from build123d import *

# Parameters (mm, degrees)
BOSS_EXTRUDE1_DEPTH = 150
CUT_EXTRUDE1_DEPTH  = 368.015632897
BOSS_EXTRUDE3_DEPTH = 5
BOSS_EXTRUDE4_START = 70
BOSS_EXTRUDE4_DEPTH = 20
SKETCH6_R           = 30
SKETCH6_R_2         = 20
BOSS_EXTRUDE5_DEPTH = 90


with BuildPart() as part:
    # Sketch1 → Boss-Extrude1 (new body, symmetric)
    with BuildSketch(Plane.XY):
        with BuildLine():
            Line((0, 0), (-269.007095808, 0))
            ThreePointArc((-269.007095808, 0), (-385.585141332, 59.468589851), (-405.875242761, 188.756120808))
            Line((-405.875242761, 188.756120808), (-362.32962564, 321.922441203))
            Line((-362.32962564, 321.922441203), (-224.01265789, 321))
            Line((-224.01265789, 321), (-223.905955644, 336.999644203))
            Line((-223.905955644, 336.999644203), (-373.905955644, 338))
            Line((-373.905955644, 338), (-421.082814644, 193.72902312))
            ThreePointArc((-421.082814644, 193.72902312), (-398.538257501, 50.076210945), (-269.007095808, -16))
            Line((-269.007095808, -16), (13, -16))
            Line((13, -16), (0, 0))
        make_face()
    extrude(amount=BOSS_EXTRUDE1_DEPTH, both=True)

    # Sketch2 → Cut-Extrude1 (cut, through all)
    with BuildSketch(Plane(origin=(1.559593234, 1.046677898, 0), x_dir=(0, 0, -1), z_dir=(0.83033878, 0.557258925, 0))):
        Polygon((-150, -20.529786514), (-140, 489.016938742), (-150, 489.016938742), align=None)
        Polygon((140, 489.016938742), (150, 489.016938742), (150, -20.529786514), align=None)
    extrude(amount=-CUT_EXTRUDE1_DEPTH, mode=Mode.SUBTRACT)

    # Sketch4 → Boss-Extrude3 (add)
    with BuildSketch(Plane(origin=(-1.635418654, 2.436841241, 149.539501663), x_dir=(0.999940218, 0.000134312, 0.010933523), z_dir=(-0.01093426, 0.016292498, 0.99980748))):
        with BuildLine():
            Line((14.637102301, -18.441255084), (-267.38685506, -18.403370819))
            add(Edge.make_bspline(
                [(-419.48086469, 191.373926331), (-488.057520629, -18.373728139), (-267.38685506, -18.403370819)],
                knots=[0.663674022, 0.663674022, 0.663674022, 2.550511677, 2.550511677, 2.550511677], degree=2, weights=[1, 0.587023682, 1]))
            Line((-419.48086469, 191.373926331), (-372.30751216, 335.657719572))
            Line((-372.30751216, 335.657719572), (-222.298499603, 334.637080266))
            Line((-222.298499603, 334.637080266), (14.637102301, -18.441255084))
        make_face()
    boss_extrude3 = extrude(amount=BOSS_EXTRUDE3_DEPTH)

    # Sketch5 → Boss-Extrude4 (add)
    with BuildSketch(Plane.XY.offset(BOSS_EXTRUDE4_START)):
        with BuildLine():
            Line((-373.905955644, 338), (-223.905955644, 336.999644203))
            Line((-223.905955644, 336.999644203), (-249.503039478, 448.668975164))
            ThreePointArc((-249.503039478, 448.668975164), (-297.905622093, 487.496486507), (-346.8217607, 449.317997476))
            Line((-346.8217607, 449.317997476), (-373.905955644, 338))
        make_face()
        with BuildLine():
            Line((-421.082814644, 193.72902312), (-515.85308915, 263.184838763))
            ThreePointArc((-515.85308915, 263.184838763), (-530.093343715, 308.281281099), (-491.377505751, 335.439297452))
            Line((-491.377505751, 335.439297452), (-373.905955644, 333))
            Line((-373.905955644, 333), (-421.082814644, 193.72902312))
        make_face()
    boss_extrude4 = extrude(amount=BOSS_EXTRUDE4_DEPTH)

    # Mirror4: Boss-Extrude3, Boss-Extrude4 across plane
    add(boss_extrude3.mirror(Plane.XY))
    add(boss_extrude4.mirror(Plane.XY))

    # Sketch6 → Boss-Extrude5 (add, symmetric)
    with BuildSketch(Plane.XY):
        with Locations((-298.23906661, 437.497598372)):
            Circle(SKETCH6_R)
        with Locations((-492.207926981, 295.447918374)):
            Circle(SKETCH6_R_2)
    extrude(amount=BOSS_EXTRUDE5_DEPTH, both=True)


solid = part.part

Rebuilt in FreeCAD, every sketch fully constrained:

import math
import FreeCAD as App
import Part
import Sketcher

V = App.Vector


def add_polygon(sketch, points):
    """Adds a closed chain of lines whose ends are joined by coincident constraints."""
    first, n = sketch.GeometryCount, len(points)
    for a, b in zip(points, points[1:] + points[:1]):
        sketch.addGeometry(Part.LineSegment(App.Vector(*a, 0), App.Vector(*b, 0)), False)
    for i in range(n):
        sketch.addConstraint(Sketcher.Constraint("Coincident", first + i, 2, first + (i + 1) % n, 1))

doc = App.newDocument("Part")
body = doc.addObject("PartDesign::Body", "Body")

# Sketch on XY plane
sketch1 = body.newObject("Sketcher::SketchObject", "Sketch")
sketch1.AttachmentSupport = (doc.getObject("XY_Plane"), [""])
sketch1.MapMode = "FlatFace"
sketch1.addGeometry(Part.LineSegment(V(0, 0, 0), V(-269.007096, 0, 0)), False)
sketch1.addGeometry(Part.ArcOfCircle(Part.Circle(V(-269.007096, 144, 0), V(0, 0, 1), 144), math.radians(161.892166), math.radians(270)), False)
sketch1.addGeometry(Part.LineSegment(V(-405.875243, 188.756121, 0), V(-362.329626, 321.922441, 0)), False)
sketch1.addGeometry(Part.LineSegment(V(-362.329626, 321.922441, 0), V(-224.012658, 321, 0)), False)
sketch1.addGeometry(Part.LineSegment(V(-224.012658, 321, 0), V(-223.905956, 336.999644, 0)), False)
sketch1.addGeometry(Part.LineSegment(V(-223.905956, 336.999644, 0), V(-373.905956, 338, 0)), False)
sketch1.addGeometry(Part.LineSegment(V(-373.905956, 338, 0), V(-421.082815, 193.729023, 0)), False)
sketch1.addGeometry(Part.ArcOfCircle(Part.Circle(V(-269.007096, 144, 0), V(0, 0, 1), 160), math.radians(161.892166), math.radians(270)), False)
sketch1.addGeometry(Part.LineSegment(V(-269.007096, -16, 0), V(13, -16, 0)), False)
sketch1.addGeometry(Part.LineSegment(V(13, -16, 0), V(0, 0, 0)), False)
sketch1.addConstraint(Sketcher.Constraint("Tangent", 0, 2, 1, 2))
sketch1.addConstraint(Sketcher.Constraint("Tangent", 1, 1, 2, 1))
sketch1.addConstraint(Sketcher.Constraint("Coincident", 2, 2, 3, 1))
sketch1.addConstraint(Sketcher.Constraint("Coincident", 3, 2, 4, 1))
sketch1.addConstraint(Sketcher.Constraint("Coincident", 4, 2, 5, 1))
sketch1.addConstraint(Sketcher.Constraint("Coincident", 5, 2, 6, 1))
sketch1.addConstraint(Sketcher.Constraint("Tangent", 6, 2, 7, 1))
sketch1.addConstraint(Sketcher.Constraint("Tangent", 7, 2, 8, 1))
sketch1.addConstraint(Sketcher.Constraint("Coincident", 8, 2, 9, 1))
sketch1.addConstraint(Sketcher.Constraint("Coincident", 9, 2, 0, 1))
sketch1.addConstraint(Sketcher.Constraint("Horizontal", 0))
sketch1.addConstraint(Sketcher.Constraint("Horizontal", 8))
sketch1.addConstraint(Sketcher.Constraint("Coincident", 9, 2, -1, 1))
sketch1.addConstraint(Sketcher.Constraint("Coincident", 7, 3, 1, 3))
sketch1.addConstraint(Sketcher.Constraint("Perpendicular", 3, 4))
sketch1.addConstraint(Sketcher.Constraint("Perpendicular", 4, 5))
sketch1.addConstraint(Sketcher.Constraint("Parallel", 2, 6))
sketch1.addConstraint(Sketcher.Constraint("Radius", 1, 144.0))
sketch1.addConstraint(Sketcher.Constraint("Radius", 7, 160.0))
sketch1.addConstraint(Sketcher.Constraint("Distance", 4, 16.0))
sketch1.addConstraint(Sketcher.Constraint("DistanceY", -1, 1, 3, 2, 321.0))
sketch1.addConstraint(Sketcher.Constraint("DistanceY", -1, 1, 5, 2, 338.0))
sketch1.addConstraint(Sketcher.Constraint("DistanceX", -1, 1, 8, 2, 13.0))
sketch1.addConstraint(Sketcher.Constraint("DistanceX", 5, 2, 4, 2, 150.0))
sketch1.addConstraint(Sketcher.Constraint("Distance", 2, 140.105281))
sketch1.addConstraint(Sketcher.Constraint("DistanceX", 0, 2, 0, 1, 269.007096))
pad1 = body.newObject("PartDesign::Pad", "Pad")
pad1.Profile = sketch1
pad1.Length = 300
pad1.Midplane = True

# Sketch on an angled plane
sketch2 = body.newObject("Sketcher::SketchObject", "Sketch001")
sketch2.Placement = App.Placement(V(1.559593, 1.046678, 0), App.Rotation(V(0, 0, -1), V(-0.557258925, 0.83033878, 0), V(0.83033878, 0.557258925, 0), "ZXY"))
add_polygon(sketch2, [(-150, -20.529786), (-140, 489.016938), (-150, 489.016938)])  # lines 0-2
add_polygon(sketch2, [(150, 489.016938), (140, 489.016938), (150, -20.529786)])  # lines 3-5
sketch2.addConstraint(Sketcher.Constraint("Horizontal", 1))
sketch2.addConstraint(Sketcher.Constraint("Vertical", 2))
sketch2.addConstraint(Sketcher.Constraint("Horizontal", 3))
sketch2.addConstraint(Sketcher.Constraint("Vertical", 5))
sketch2.addConstraint(Sketcher.Constraint("Symmetric", 0, 2, 3, 2, -2))
sketch2.addConstraint(Sketcher.Constraint("Symmetric", 2, 2, 4, 2, -2))
sketch2.addConstraint(Sketcher.Constraint("DistanceX", 1, 2, 1, 1, 10.0))
sketch2.addConstraint(Sketcher.Constraint("DistanceX", 0, 2, -1, 1, 140.0))
sketch2.addConstraint(Sketcher.Constraint("Distance", 0, 509.644842))
sketch2.addConstraint(Sketcher.Constraint("DistanceY", -1, 1, 0, 2, 489.016938))
pocket1 = body.newObject("PartDesign::Pocket", "Pocket")
pocket1.Profile = sketch2
pocket1.Type = "ThroughAll"

# Sketch on an angled plane
sketch3 = body.newObject("Sketcher::SketchObject", "Sketch002")
sketch3.Placement = App.Placement(V(-1.635419, 2.436841, 149.539502), App.Rotation(V(0.999940218, 0.000134312, 0.010933523), V(0.000043848, 0.999867259, -0.016292993), V(-0.01093426, 0.016292498, 0.99980748), "ZXY"))
sketch3.addGeometry(Part.LineSegment(V(-267.386855, -18.403371, 0), V(14.637102, -18.441255, 0)), False)
sketch3.addGeometry(Part.LineSegment(V(14.637102, -18.441255, 0), V(-222.298499, 334.63708, 0)), False)
sketch3.addGeometry(Part.LineSegment(V(-222.298499, 334.63708, 0), V(-372.307512, 335.65772, 0)), False)
sketch3.addGeometry(Part.LineSegment(V(-372.307512, 335.65772, 0), V(-419.480864, 191.373926, 0)), False)
sketch3.addGeometry(Part.BSplineCurve([V(-419.480864, 191.373926, 0), V(-488.05752, -18.373728, 0), V(-267.386855, -18.403371, 0)], [3, 3], [0.663674022, 2.550511677], False, 2, [1, 0.587023682, 1], False), False)
sketch3.addConstraint(Sketcher.Constraint("Block", 4))
sketch3.addConstraint(Sketcher.Constraint("Coincident", 0, 2, 1, 1))
sketch3.addConstraint(Sketcher.Constraint("Coincident", 1, 2, 2, 1))
sketch3.addConstraint(Sketcher.Constraint("Coincident", 2, 2, 3, 1))
sketch3.addConstraint(Sketcher.Constraint("Coincident", 3, 2, 4, 1))
sketch3.addConstraint(Sketcher.Constraint("Coincident", 4, 2, 0, 1))
sketch3.addConstraint(Sketcher.Constraint("DistanceX", 1, 2, -1, 1, 222.298499))
sketch3.addConstraint(Sketcher.Constraint("DistanceX", 1, 2, 0, 2, 236.935602))
sketch3.addConstraint(Sketcher.Constraint("DistanceY", -1, 1, 1, 2, 334.63708))
sketch3.addConstraint(Sketcher.Constraint("DistanceX", 2, 2, -1, 1, 372.307512))
sketch3.addConstraint(Sketcher.Constraint("DistanceY", -1, 1, 2, 2, 335.65772))
sketch3.addConstraint(Sketcher.Constraint("DistanceY", 0, 2, 3, 2, 209.815181))
pad2 = body.newObject("PartDesign::Pad", "Pad001")
pad2.Profile = sketch3
pad2.Length = 5

# Sketch on XY plane
sketch4 = body.newObject("Sketcher::SketchObject", "Sketch003")
sketch4.AttachmentSupport = (doc.getObject("XY_Plane"), [""])
sketch4.MapMode = "FlatFace"
sketch4.AttachmentOffset = App.Placement(V(0, 0, 70), App.Rotation())
sketch4.addGeometry(Part.LineSegment(V(-373.905956, 338, 0), V(-223.905956, 336.999644, 0)), False)
sketch4.addGeometry(Part.LineSegment(V(-223.905956, 336.999644, 0), V(-249.503039, 448.668975, 0)), False)
sketch4.addGeometry(Part.ArcOfCircle(Part.Circle(V(-298.239067, 437.497598, 0), V(0, 0, 1), 50), math.radians(12.910429), math.radians(166.325367)), False)
sketch4.addGeometry(Part.LineSegment(V(-346.821761, 449.317997, 0), V(-373.905956, 338, 0)), False)
sketch4.addGeometry(Part.LineSegment(V(-515.853089, 263.184839, 0), V(-421.082815, 193.729023, 0)), False)
sketch4.addGeometry(Part.LineSegment(V(-421.082815, 193.729023, 0), V(-373.905956, 333, 0)), False)
sketch4.addGeometry(Part.LineSegment(V(-373.905956, 333, 0), V(-491.377506, 335.439297, 0)), False)
sketch4.addGeometry(Part.ArcOfCircle(Part.Circle(V(-492.207927, 295.447918, 0), V(0, 0, 1), 40), math.radians(88.810424), math.radians(233.76283)), False)
sketch4.addConstraint(Sketcher.Constraint("Coincident", 0, 2, 1, 1))
sketch4.addConstraint(Sketcher.Constraint("Tangent", 1, 2, 2, 1))
sketch4.addConstraint(Sketcher.Constraint("Tangent", 2, 2, 3, 1))
sketch4.addConstraint(Sketcher.Constraint("Coincident", 3, 2, 0, 1))
sketch4.addConstraint(Sketcher.Constraint("Coincident", 4, 2, 5, 1))
sketch4.addConstraint(Sketcher.Constraint("Coincident", 5, 2, 6, 1))
sketch4.addConstraint(Sketcher.Constraint("Tangent", 6, 2, 7, 1))
sketch4.addConstraint(Sketcher.Constraint("Tangent", 7, 2, 4, 1))
sketch4.addConstraint(Sketcher.Constraint("Vertical", 3, 2, 5, 2))
sketch4.addConstraint(Sketcher.Constraint("Equal", 1, 3))
sketch4.addConstraint(Sketcher.Constraint("Equal", 4, 6))
sketch4.addConstraint(Sketcher.Constraint("Radius", 2, 50.0))
sketch4.addConstraint(Sketcher.Constraint("Radius", 7, 40.0))
sketch4.addConstraint(Sketcher.Constraint("DistanceY", -1, 1, 3, 2, 338.0))
sketch4.addConstraint(Sketcher.Constraint("DistanceY", -1, 1, 5, 2, 333.0))
sketch4.addConstraint(Sketcher.Constraint("DistanceX", 3, 2, 0, 2, 150.0))
sketch4.addConstraint(Sketcher.Constraint("DistanceY", -1, 1, 2, 3, 437.497598))
sketch4.addConstraint(Sketcher.Constraint("DistanceY", 2, 3, 2, 2, 11.820399))
sketch4.addConstraint(Sketcher.Constraint("DistanceY", 6, 2, 2, 2, 113.8787))
sketch4.addConstraint(Sketcher.Constraint("Distance", 5, 147.044419))
sketch4.addConstraint(Sketcher.Constraint("DistanceX", 1, 2, -1, 1, 249.503039))
sketch4.addConstraint(Sketcher.Constraint("DistanceX", 7, 2, -1, 1, 515.853089))
pad3 = body.newObject("PartDesign::Pad", "Pad002")
pad3.Profile = sketch4
pad3.Length = 20
doc.recompute()

mirrored = body.newObject("PartDesign::Mirrored", "Mirrored")
mirrored.Originals = [pad2, pad3]
mirrored.MirrorPlane = (doc.getObject("XY_Plane"), [""])
body.Tip = mirrored

# Sketch on XY plane
sketch5 = body.newObject("Sketcher::SketchObject", "Sketch004")
sketch5.AttachmentSupport = (doc.getObject("XY_Plane"), [""])
sketch5.MapMode = "FlatFace"
sketch5.addGeometry(Part.Circle(V(-298.239067, 437.497598, 0), V(0, 0, 1), 30), False)
sketch5.addGeometry(Part.Circle(V(-492.207927, 295.447918, 0), V(0, 0, 1), 20), False)
sketch5.addConstraint(Sketcher.Constraint("Diameter", 0, 60.0))
sketch5.addConstraint(Sketcher.Constraint("Diameter", 1, 40.0))
sketch5.addConstraint(Sketcher.Constraint("DistanceY", -1, 1, 0, 3, 437.497598))
sketch5.addConstraint(Sketcher.Constraint("DistanceY", -1, 1, 1, 3, 295.447918))
sketch5.addConstraint(Sketcher.Constraint("DistanceX", 1, 3, 0, 3, 193.96886))
sketch5.addConstraint(Sketcher.Constraint("DistanceX", 0, 3, -1, 1, 298.239067))
pad4 = body.newObject("PartDesign::Pad", "Pad003")
pad4.Profile = sketch5
pad4.Length = 180
pad4.Midplane = True

doc.recompute()
